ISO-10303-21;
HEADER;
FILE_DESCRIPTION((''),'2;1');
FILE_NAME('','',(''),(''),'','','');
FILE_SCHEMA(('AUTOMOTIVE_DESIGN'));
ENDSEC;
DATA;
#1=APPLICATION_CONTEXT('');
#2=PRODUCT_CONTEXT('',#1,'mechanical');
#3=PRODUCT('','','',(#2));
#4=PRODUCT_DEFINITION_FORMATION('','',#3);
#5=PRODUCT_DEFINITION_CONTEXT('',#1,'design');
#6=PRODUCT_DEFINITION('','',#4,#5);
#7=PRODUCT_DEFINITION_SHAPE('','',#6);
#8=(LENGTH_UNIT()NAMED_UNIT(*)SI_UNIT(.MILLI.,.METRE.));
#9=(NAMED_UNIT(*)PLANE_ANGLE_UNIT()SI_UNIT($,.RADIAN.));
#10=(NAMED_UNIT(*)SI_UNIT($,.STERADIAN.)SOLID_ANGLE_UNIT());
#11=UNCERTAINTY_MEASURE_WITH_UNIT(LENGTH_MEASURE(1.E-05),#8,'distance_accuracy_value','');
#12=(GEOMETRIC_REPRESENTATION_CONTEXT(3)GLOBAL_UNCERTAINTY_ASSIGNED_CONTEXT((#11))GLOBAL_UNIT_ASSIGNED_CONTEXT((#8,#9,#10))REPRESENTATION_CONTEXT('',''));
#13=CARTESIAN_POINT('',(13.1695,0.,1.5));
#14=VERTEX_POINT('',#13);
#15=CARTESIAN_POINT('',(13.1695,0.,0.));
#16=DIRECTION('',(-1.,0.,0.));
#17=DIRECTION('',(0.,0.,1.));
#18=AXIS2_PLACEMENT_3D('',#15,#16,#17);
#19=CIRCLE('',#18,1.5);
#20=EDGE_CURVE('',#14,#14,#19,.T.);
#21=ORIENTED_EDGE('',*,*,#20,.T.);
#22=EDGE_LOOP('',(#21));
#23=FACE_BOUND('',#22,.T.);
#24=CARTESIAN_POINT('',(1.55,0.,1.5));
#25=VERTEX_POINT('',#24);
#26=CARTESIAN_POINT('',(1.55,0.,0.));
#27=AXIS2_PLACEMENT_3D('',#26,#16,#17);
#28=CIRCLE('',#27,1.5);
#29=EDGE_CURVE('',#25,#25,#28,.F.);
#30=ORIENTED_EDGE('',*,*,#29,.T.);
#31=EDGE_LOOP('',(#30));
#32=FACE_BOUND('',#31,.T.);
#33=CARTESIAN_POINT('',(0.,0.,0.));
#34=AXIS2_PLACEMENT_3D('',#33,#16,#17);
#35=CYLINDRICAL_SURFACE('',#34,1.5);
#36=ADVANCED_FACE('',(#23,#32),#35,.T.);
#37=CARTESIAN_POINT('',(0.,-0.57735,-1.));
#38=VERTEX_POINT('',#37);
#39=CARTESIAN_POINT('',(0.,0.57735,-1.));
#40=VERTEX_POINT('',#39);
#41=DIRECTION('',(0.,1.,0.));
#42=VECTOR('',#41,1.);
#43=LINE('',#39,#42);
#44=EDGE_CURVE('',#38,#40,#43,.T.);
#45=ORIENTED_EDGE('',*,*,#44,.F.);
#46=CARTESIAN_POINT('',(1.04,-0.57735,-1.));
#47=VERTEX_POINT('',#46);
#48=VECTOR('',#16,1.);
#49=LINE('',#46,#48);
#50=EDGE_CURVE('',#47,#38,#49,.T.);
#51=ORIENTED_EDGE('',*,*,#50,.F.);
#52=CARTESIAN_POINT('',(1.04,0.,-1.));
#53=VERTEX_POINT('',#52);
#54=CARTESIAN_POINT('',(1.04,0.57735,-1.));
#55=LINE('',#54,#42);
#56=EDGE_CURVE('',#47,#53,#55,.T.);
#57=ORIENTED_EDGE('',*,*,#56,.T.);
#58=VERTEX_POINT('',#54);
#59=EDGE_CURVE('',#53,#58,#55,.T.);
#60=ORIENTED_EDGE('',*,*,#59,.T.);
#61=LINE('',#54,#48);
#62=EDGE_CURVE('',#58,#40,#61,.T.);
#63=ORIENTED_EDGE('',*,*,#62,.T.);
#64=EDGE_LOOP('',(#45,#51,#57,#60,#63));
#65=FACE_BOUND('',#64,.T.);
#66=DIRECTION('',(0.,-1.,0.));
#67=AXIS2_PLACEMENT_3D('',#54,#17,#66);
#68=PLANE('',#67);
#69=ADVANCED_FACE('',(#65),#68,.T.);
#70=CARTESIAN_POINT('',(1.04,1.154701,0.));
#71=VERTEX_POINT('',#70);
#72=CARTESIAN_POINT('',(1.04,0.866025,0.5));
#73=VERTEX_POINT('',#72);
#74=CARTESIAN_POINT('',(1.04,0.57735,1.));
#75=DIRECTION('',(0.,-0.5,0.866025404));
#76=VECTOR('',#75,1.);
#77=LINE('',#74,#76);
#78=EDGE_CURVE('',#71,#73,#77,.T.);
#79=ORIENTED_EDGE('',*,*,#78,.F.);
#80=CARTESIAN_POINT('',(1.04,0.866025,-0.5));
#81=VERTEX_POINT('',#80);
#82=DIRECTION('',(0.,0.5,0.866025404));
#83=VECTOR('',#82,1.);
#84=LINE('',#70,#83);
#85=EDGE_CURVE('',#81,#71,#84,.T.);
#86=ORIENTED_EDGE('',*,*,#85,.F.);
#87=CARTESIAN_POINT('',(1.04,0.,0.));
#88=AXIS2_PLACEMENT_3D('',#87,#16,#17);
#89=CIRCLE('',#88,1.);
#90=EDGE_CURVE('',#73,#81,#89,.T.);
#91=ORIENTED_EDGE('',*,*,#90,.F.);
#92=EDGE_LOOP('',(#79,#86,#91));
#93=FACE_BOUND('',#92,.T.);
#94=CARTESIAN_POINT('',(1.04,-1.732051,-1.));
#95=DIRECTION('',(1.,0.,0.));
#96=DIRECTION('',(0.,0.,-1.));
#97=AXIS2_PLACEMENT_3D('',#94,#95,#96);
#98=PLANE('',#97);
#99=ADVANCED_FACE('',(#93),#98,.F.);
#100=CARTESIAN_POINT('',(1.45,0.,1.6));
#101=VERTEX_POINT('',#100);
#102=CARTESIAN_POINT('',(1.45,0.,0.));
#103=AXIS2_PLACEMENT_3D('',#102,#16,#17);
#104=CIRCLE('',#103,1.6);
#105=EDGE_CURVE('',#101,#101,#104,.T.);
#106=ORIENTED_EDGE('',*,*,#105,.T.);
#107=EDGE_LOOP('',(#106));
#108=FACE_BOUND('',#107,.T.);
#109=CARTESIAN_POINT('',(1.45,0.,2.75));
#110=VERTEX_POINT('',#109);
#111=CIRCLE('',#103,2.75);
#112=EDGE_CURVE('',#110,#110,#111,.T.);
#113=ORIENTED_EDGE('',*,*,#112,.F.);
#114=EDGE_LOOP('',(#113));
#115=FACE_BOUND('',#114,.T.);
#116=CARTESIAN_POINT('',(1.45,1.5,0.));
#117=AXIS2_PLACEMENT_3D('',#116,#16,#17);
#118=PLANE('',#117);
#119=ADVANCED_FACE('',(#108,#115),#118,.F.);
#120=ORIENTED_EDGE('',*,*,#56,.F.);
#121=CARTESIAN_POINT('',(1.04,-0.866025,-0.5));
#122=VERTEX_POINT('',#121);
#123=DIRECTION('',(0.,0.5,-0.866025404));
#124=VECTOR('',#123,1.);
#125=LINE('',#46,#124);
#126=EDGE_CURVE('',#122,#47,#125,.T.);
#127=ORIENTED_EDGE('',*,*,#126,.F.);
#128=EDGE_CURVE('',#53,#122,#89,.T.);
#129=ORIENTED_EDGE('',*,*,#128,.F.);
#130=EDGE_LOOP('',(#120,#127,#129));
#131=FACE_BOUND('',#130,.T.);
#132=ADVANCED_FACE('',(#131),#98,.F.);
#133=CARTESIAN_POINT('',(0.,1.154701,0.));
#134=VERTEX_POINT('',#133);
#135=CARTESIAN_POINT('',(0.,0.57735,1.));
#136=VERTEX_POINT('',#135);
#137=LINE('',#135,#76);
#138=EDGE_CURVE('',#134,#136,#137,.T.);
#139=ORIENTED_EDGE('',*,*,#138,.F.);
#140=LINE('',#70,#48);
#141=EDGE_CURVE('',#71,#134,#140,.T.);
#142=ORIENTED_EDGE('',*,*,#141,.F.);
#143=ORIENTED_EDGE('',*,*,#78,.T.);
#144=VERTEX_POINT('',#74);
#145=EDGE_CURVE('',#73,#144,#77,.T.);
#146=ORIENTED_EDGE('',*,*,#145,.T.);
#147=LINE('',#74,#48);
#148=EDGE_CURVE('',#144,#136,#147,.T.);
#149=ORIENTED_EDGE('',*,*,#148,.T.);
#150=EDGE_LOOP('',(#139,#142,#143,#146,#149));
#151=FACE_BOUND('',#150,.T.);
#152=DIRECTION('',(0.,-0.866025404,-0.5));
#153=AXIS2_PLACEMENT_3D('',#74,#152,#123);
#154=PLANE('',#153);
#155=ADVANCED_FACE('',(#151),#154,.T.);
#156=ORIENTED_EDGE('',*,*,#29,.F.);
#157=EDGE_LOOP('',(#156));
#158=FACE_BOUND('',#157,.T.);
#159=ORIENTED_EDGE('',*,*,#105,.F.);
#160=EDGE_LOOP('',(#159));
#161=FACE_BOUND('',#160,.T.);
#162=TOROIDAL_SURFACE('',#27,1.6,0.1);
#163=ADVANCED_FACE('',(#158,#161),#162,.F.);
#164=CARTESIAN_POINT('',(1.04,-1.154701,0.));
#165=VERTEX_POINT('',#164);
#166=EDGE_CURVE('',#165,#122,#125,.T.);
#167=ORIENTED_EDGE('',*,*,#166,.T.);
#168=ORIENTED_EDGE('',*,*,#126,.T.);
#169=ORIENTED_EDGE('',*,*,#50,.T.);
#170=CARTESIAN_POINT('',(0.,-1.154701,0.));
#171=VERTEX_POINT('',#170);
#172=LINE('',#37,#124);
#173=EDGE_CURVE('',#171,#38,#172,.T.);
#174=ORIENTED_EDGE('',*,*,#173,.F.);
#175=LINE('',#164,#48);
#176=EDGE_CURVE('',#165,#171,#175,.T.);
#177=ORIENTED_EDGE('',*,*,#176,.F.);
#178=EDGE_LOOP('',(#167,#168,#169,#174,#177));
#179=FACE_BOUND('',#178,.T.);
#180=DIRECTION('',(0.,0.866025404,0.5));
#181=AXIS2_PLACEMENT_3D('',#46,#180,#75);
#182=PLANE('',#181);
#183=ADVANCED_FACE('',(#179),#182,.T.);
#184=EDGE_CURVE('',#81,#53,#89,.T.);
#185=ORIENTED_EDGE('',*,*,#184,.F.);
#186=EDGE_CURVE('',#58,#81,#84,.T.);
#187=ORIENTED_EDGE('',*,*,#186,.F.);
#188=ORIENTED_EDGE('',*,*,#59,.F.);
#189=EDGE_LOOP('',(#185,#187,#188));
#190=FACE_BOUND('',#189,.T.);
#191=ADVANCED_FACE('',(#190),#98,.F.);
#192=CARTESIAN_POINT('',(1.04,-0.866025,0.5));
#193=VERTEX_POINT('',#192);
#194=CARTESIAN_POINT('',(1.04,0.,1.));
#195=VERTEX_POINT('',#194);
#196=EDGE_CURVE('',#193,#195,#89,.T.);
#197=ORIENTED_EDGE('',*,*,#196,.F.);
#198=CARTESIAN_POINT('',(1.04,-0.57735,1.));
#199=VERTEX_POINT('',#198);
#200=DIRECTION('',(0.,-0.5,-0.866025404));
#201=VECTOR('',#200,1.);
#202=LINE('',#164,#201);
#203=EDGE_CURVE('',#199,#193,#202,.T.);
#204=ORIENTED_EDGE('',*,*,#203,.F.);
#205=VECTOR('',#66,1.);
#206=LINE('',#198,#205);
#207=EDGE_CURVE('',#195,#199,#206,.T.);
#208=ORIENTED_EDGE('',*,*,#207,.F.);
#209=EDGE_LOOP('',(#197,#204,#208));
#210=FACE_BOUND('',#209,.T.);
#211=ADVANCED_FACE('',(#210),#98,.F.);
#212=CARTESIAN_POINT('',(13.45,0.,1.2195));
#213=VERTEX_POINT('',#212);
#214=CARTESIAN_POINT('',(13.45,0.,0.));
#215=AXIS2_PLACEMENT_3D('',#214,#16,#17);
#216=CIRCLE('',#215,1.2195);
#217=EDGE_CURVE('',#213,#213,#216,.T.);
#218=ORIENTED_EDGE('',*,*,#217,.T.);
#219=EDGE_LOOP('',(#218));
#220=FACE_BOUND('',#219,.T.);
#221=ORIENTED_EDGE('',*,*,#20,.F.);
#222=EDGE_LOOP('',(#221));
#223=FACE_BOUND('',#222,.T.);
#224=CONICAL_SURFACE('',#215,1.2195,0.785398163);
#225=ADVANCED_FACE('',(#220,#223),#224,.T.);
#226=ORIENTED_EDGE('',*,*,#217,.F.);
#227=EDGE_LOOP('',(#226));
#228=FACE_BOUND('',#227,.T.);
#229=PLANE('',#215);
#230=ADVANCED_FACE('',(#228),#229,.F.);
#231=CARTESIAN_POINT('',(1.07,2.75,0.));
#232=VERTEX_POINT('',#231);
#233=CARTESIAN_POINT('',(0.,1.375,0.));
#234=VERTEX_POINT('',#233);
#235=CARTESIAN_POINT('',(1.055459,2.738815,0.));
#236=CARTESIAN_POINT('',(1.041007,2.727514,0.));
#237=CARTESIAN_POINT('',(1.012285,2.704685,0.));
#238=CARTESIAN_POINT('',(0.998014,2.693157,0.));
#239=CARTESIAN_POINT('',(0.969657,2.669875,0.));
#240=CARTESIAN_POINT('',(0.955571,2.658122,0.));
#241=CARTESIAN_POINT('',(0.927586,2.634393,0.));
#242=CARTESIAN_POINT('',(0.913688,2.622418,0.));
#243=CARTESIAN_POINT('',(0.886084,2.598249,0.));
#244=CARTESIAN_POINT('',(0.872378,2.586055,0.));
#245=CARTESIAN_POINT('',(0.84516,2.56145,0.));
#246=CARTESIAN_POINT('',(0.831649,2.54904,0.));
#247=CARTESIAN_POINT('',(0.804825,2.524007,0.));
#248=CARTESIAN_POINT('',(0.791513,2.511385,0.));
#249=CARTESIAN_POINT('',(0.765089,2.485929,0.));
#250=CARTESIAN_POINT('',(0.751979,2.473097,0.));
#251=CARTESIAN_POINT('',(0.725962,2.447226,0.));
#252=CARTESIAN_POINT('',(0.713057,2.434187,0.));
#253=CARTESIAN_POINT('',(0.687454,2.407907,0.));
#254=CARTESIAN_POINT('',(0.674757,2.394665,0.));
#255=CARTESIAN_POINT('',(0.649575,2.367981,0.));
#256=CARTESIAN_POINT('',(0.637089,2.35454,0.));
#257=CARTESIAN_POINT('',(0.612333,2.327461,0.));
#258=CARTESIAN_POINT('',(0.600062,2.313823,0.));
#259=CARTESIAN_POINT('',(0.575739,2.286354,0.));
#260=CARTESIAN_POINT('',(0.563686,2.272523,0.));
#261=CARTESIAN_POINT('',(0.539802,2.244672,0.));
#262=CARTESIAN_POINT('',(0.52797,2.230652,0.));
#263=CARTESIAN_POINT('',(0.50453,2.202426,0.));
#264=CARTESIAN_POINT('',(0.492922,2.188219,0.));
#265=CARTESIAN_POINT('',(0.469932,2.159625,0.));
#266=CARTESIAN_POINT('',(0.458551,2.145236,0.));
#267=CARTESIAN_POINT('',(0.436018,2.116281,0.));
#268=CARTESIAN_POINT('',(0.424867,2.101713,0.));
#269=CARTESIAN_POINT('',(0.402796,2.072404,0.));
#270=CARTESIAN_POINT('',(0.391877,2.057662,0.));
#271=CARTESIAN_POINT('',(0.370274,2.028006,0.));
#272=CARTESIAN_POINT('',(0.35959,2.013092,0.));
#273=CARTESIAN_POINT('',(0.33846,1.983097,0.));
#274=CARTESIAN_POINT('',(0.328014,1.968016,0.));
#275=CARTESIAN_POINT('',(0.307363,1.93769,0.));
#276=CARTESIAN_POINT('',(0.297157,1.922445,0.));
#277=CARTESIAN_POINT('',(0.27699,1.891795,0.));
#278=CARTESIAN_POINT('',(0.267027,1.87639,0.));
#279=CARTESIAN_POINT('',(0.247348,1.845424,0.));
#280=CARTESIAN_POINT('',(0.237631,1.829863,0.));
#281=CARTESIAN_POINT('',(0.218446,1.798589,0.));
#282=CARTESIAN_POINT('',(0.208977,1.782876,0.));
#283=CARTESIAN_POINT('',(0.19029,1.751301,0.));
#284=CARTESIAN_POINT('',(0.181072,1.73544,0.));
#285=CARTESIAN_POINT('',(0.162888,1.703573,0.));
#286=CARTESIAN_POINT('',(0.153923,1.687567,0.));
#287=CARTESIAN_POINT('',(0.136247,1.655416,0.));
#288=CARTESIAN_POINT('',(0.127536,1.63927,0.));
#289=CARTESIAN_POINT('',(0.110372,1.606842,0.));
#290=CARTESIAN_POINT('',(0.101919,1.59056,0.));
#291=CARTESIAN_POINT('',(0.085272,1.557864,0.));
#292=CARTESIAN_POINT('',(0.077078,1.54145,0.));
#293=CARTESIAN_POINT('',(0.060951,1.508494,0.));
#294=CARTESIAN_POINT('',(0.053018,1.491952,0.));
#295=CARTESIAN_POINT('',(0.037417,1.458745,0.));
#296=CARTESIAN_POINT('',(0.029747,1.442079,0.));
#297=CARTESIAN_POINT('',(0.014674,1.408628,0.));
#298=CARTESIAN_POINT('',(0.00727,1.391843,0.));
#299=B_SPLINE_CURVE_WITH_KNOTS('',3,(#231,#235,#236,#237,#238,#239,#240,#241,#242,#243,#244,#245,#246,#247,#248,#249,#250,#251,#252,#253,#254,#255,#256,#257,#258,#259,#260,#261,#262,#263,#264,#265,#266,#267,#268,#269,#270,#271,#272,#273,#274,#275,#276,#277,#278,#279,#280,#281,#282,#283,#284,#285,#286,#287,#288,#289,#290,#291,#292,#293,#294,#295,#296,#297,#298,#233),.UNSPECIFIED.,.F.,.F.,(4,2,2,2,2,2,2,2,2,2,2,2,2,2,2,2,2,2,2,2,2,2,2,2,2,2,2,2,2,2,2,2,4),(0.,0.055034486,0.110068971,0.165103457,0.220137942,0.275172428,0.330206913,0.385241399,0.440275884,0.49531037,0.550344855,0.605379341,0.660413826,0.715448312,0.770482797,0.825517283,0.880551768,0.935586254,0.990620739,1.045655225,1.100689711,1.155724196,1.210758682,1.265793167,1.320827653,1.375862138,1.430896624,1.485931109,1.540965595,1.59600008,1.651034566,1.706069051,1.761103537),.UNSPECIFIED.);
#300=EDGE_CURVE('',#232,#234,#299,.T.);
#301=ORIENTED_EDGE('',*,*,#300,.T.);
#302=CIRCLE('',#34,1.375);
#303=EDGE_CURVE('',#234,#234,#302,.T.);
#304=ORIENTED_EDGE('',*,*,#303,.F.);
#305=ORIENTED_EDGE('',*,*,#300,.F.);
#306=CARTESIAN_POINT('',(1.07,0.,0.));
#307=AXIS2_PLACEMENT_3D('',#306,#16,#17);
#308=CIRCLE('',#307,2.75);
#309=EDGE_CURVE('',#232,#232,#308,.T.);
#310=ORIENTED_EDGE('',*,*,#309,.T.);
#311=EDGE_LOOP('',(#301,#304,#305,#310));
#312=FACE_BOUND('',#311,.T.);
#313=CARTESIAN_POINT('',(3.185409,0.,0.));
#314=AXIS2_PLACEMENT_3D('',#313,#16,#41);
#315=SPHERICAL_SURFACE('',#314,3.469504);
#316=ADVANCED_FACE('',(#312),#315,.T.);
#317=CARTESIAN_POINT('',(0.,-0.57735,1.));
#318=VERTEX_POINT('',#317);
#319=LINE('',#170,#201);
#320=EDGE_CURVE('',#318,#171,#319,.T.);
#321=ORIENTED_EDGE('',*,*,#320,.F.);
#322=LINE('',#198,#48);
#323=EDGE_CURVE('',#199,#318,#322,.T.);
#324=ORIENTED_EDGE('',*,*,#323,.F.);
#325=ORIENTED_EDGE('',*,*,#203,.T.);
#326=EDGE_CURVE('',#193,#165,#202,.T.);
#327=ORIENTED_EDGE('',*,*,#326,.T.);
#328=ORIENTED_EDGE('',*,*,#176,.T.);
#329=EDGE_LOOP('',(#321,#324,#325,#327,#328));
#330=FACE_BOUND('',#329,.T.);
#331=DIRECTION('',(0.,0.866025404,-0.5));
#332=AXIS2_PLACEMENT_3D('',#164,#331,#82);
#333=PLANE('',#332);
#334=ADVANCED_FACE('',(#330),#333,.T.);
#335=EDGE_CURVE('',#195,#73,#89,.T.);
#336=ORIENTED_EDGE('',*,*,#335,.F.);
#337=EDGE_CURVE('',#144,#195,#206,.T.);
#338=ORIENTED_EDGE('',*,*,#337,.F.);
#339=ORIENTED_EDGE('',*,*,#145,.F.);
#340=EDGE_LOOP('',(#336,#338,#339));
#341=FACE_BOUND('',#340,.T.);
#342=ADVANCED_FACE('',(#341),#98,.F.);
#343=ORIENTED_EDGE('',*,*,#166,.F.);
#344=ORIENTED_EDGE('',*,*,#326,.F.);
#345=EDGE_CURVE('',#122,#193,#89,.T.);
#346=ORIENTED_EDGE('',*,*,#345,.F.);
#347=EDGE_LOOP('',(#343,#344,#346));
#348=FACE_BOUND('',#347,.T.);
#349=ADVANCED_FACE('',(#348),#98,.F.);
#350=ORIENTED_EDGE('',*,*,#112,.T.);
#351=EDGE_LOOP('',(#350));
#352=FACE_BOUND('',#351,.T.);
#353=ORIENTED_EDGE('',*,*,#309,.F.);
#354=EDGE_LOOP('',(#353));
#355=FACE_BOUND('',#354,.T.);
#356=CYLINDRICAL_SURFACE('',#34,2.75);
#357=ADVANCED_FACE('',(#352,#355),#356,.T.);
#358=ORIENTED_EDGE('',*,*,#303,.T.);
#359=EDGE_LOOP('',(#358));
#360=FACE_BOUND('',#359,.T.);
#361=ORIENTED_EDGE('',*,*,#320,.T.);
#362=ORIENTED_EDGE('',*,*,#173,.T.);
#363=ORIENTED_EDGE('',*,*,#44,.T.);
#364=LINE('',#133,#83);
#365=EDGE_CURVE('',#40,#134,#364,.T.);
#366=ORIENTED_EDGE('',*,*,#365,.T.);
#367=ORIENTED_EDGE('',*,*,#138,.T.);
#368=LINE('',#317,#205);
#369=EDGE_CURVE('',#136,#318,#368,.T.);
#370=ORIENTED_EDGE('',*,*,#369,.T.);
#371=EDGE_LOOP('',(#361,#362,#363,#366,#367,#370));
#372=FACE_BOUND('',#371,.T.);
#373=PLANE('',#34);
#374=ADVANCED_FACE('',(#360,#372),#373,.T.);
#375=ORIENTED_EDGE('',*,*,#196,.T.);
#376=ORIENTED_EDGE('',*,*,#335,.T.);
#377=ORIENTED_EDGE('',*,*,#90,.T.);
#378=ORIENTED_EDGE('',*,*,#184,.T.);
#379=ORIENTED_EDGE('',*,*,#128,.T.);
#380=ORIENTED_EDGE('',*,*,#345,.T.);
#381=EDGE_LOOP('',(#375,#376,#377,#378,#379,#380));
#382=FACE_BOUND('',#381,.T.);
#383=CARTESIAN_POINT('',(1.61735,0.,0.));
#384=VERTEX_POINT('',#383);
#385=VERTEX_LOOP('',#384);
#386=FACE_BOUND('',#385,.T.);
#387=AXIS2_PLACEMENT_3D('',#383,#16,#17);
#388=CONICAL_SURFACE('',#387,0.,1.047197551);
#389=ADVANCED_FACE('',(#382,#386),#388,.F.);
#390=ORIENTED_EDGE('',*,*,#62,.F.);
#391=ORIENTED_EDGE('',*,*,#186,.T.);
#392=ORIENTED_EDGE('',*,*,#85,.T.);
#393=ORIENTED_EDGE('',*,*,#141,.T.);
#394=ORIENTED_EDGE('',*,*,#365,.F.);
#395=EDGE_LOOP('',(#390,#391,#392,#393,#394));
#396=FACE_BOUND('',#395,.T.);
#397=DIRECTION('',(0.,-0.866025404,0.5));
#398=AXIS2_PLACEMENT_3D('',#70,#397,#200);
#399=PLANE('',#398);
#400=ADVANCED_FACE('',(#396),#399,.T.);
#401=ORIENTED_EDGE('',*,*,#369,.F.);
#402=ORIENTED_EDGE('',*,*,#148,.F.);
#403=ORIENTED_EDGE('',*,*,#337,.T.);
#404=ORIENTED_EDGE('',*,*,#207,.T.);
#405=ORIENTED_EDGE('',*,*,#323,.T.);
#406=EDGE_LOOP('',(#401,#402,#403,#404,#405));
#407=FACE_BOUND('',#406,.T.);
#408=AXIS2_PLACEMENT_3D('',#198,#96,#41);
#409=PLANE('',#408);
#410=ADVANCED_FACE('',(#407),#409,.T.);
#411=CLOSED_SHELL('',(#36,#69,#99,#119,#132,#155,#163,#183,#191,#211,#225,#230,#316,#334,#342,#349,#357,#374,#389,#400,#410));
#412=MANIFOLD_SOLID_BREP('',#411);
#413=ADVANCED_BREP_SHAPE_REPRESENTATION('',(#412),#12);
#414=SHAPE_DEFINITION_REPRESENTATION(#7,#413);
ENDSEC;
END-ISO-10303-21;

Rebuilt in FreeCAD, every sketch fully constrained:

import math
import FreeCAD as App
import Part
import Sketcher
from FreeCAD import Vector
Q = App.Units.Quantity


def edges_at(feature, points):
    """Names of the edges that pass closest to the given points."""
    edges = feature.Shape.Edges
    near = lambda p: min(range(len(edges)), key=lambda i: edges[i].distToShape(Part.Vertex(*p))[0])
    return sorted({f"Edge{near(p) + 1}" for p in points})


def add_polygon(sketch, points):
    """Adds a closed chain of lines whose ends are joined by coincident constraints."""
    first, n = sketch.GeometryCount, len(points)
    for a, b in zip(points, points[1:] + points[:1]):
        sketch.addGeometry(Part.LineSegment(App.Vector(*a, 0), App.Vector(*b, 0)), False)
    for i in range(n):
        sketch.addConstraint(Sketcher.Constraint("Coincident", first + i, 2, first + (i + 1) % n, 1))

doc = App.newDocument("Part")
params = doc.addObject("Spreadsheet::Sheet", "Params")
for row, (alias, value) in enumerate([
    ("sketch1_width", "0.38 mm"),
    ("sketch1_width2", "13.45 mm"),
    ("sketch1_height", "1.25 mm"),
    ("revolution_angle", "360 deg"),
    ("fillet_radius", "0.1 mm"),
    ("sketch2_height", "1 mm"),
    ("sketch2_width", "1.04 mm"),
    ("groove_angle", "360 deg"),
    ("pocket1_length", "1.04 mm"),
], start=1):
    params.set(f"A{row}", alias)
    params.set(f"B{row}", "=" + value)
    params.setAlias(f"B{row}", alias)

body = doc.addObject("PartDesign::Body", "Body")

sketch1 = body.newObject("Sketcher::SketchObject", "Sketch")
sketch1.AttachmentSupport = (doc.getObject("XY_Plane"), [""])
sketch1.MapMode = "FlatFace"
sketch1.addGeometry([
    Part.LineSegment(Vector(13.45, 0, 0), Vector(13.45, 1.22, 0)),
    Part.LineSegment(Vector(13.45, 1.22, 0), Vector(13.17, 1.5, 0)),
    Part.LineSegment(Vector(13.17, 1.5, 0), Vector(1.45, 1.5, 0)),
    Part.LineSegment(Vector(1.45, 1.5, 0), Vector(1.45, 2.75, 0)),
    Part.LineSegment(Vector(1.45, 2.75, 0), Vector(1.07, 2.75, 0)),
    Part.ArcOfCircle(Part.Circle(Vector(3.19, 0, 0), Vector(0, 0, 1), 3.47), math.radians(128), math.radians(157)),
    Part.LineSegment(Vector(0, 1.38, 0), Vector(0, 0, 0)),
    Part.LineSegment(Vector(0, 0, 0), Vector(13.45, 0, 0)),
], False)
sketch1.addConstraint([
    Sketcher.Constraint("Coincident", 0, 2, 1, 1),
    Sketcher.Constraint("Coincident", 1, 2, 2, 1),
    Sketcher.Constraint("Coincident", 2, 2, 3, 1),
    Sketcher.Constraint("Coincident", 3, 2, 4, 1),
    Sketcher.Constraint("Coincident", 4, 2, 5, 1),
    Sketcher.Constraint("Coincident", 5, 2, 6, 1),
    Sketcher.Constraint("Coincident", 6, 2, 7, 1),
    Sketcher.Constraint("Coincident", 7, 2, 0, 1),
    Sketcher.Constraint("Vertical", 0),
    Sketcher.Constraint("Horizontal", 2),
    Sketcher.Constraint("Vertical", 3),
    Sketcher.Constraint("Horizontal", 4),
    Sketcher.Constraint("Vertical", 6),
    Sketcher.Constraint("Horizontal", 7),
    Sketcher.Constraint("Coincident", 6, 2, -1, 1),
    Sketcher.Constraint("PointOnObject", 5, 3, -1),
    Sketcher.Constraint("Angle", 1, Q("135 deg")),
    Sketcher.Constraint("DistanceX", 2, 2, 0, 2, 12.0),
    Sketcher.Constraint("DistanceX", 4, 2, 4, 1, 0.38),
    Sketcher.Constraint("DistanceX", 7, 1, 7, 2, 13.45),
    Sketcher.Constraint("DistanceY", 3, 1, 3, 2, 1.25),
    Sketcher.Constraint("DistanceY", -1, 1, 1, 2, 1.5),
    Sketcher.Constraint("DistanceY", 6, 2, 6, 1, 1.375),
    Sketcher.Constraint("DistanceX", 2, 2, 2, 1, 11.7195),
])
sketch1.setExpression("Constraints[18]", "Params.sketch1_width")
sketch1.setExpression("Constraints[19]", "Params.sketch1_width2")
sketch1.setExpression("Constraints[20]", "Params.sketch1_height")
revolution = body.newObject("PartDesign::Revolution", "Revolution")
revolution.Profile = sketch1
revolution.ReferenceAxis = (sketch1, ["H_Axis"])
revolution.setExpression("Angle", "Params.revolution_angle")
doc.recompute()

fillet = body.newObject("PartDesign::Fillet", "Fillet")
fillet.Base = (revolution, edges_at(revolution, [(1.45, 0, -1.5)]))
fillet.setExpression("Radius", "Params.fillet_radius")

sketch2 = body.newObject("Sketcher::SketchObject", "Sketch001")
sketch2.AttachmentSupport = (doc.getObject("XY_Plane"), [""])
sketch2.MapMode = "FlatFace"
add_polygon(sketch2, [(1, 1), (0, 1), (0, 0), (1.6, 0)])
sketch2.addConstraint([
    Sketcher.Constraint("Horizontal", 0),
    Sketcher.Constraint("Vertical", 1),
    Sketcher.Constraint("Horizontal", 2),
    Sketcher.Constraint("Coincident", 1, 2, -1, 1),
    Sketcher.Constraint("DistanceY", 1, 2, 1, 1, 1.0),
    Sketcher.Constraint("Angle", 3, Q("120 deg")),
    Sketcher.Constraint("DistanceX", 0, 2, 0, 1, 1.04),
])
sketch2.setExpression("Constraints[8]", "Params.sketch2_height")
sketch2.setExpression("Constraints[10]", "Params.sketch2_width")
groove = body.newObject("PartDesign::Groove", "Groove")
groove.Profile = sketch2
groove.ReferenceAxis = (sketch2, ["H_Axis"])
groove.setExpression("Angle", "Params.groove_angle")

sketch3 = body.newObject("Sketcher::SketchObject", "Sketch002")
sketch3.AttachmentSupport = (doc.getObject("YZ_Plane"), [""])
sketch3.MapMode = "FlatFace"
add_polygon(sketch3, [(0.6, 1), (-0.6, 1), (-1.2, 0), (-0.6, -1), (0.6, -1), (1.2, 0)])
sketch3.addConstraint([
    Sketcher.Constraint("Horizontal", 0),
    Sketcher.Constraint("Horizontal", 3),
    Sketcher.Constraint("Symmetric", 0, 2, 3, 2, -1, 1),
    Sketcher.Constraint("Symmetric", 1, 2, 4, 2, -1, 1),
    Sketcher.Constraint("PointOnObject", 1, 2, -1),
    Sketcher.Constraint("Parallel", 2, 5),
    Sketcher.Constraint("Vertical", 0, 2, 2, 2),
    Sketcher.Constraint("Angle", 1, Q("-120 deg")),
    Sketcher.Constraint("DistanceY", -1, 1, 0, 2, 1.0),
    Sketcher.Constraint("DistanceX", 0, 2, 0, 1, 1.154701),
])
pocket1 = body.newObject("PartDesign::Pocket", "Pocket")
pocket1.Profile = sketch3
pocket1.setExpression("Length", "Params.pocket1_length")
pocket1.Reversed = True

doc.recompute()
